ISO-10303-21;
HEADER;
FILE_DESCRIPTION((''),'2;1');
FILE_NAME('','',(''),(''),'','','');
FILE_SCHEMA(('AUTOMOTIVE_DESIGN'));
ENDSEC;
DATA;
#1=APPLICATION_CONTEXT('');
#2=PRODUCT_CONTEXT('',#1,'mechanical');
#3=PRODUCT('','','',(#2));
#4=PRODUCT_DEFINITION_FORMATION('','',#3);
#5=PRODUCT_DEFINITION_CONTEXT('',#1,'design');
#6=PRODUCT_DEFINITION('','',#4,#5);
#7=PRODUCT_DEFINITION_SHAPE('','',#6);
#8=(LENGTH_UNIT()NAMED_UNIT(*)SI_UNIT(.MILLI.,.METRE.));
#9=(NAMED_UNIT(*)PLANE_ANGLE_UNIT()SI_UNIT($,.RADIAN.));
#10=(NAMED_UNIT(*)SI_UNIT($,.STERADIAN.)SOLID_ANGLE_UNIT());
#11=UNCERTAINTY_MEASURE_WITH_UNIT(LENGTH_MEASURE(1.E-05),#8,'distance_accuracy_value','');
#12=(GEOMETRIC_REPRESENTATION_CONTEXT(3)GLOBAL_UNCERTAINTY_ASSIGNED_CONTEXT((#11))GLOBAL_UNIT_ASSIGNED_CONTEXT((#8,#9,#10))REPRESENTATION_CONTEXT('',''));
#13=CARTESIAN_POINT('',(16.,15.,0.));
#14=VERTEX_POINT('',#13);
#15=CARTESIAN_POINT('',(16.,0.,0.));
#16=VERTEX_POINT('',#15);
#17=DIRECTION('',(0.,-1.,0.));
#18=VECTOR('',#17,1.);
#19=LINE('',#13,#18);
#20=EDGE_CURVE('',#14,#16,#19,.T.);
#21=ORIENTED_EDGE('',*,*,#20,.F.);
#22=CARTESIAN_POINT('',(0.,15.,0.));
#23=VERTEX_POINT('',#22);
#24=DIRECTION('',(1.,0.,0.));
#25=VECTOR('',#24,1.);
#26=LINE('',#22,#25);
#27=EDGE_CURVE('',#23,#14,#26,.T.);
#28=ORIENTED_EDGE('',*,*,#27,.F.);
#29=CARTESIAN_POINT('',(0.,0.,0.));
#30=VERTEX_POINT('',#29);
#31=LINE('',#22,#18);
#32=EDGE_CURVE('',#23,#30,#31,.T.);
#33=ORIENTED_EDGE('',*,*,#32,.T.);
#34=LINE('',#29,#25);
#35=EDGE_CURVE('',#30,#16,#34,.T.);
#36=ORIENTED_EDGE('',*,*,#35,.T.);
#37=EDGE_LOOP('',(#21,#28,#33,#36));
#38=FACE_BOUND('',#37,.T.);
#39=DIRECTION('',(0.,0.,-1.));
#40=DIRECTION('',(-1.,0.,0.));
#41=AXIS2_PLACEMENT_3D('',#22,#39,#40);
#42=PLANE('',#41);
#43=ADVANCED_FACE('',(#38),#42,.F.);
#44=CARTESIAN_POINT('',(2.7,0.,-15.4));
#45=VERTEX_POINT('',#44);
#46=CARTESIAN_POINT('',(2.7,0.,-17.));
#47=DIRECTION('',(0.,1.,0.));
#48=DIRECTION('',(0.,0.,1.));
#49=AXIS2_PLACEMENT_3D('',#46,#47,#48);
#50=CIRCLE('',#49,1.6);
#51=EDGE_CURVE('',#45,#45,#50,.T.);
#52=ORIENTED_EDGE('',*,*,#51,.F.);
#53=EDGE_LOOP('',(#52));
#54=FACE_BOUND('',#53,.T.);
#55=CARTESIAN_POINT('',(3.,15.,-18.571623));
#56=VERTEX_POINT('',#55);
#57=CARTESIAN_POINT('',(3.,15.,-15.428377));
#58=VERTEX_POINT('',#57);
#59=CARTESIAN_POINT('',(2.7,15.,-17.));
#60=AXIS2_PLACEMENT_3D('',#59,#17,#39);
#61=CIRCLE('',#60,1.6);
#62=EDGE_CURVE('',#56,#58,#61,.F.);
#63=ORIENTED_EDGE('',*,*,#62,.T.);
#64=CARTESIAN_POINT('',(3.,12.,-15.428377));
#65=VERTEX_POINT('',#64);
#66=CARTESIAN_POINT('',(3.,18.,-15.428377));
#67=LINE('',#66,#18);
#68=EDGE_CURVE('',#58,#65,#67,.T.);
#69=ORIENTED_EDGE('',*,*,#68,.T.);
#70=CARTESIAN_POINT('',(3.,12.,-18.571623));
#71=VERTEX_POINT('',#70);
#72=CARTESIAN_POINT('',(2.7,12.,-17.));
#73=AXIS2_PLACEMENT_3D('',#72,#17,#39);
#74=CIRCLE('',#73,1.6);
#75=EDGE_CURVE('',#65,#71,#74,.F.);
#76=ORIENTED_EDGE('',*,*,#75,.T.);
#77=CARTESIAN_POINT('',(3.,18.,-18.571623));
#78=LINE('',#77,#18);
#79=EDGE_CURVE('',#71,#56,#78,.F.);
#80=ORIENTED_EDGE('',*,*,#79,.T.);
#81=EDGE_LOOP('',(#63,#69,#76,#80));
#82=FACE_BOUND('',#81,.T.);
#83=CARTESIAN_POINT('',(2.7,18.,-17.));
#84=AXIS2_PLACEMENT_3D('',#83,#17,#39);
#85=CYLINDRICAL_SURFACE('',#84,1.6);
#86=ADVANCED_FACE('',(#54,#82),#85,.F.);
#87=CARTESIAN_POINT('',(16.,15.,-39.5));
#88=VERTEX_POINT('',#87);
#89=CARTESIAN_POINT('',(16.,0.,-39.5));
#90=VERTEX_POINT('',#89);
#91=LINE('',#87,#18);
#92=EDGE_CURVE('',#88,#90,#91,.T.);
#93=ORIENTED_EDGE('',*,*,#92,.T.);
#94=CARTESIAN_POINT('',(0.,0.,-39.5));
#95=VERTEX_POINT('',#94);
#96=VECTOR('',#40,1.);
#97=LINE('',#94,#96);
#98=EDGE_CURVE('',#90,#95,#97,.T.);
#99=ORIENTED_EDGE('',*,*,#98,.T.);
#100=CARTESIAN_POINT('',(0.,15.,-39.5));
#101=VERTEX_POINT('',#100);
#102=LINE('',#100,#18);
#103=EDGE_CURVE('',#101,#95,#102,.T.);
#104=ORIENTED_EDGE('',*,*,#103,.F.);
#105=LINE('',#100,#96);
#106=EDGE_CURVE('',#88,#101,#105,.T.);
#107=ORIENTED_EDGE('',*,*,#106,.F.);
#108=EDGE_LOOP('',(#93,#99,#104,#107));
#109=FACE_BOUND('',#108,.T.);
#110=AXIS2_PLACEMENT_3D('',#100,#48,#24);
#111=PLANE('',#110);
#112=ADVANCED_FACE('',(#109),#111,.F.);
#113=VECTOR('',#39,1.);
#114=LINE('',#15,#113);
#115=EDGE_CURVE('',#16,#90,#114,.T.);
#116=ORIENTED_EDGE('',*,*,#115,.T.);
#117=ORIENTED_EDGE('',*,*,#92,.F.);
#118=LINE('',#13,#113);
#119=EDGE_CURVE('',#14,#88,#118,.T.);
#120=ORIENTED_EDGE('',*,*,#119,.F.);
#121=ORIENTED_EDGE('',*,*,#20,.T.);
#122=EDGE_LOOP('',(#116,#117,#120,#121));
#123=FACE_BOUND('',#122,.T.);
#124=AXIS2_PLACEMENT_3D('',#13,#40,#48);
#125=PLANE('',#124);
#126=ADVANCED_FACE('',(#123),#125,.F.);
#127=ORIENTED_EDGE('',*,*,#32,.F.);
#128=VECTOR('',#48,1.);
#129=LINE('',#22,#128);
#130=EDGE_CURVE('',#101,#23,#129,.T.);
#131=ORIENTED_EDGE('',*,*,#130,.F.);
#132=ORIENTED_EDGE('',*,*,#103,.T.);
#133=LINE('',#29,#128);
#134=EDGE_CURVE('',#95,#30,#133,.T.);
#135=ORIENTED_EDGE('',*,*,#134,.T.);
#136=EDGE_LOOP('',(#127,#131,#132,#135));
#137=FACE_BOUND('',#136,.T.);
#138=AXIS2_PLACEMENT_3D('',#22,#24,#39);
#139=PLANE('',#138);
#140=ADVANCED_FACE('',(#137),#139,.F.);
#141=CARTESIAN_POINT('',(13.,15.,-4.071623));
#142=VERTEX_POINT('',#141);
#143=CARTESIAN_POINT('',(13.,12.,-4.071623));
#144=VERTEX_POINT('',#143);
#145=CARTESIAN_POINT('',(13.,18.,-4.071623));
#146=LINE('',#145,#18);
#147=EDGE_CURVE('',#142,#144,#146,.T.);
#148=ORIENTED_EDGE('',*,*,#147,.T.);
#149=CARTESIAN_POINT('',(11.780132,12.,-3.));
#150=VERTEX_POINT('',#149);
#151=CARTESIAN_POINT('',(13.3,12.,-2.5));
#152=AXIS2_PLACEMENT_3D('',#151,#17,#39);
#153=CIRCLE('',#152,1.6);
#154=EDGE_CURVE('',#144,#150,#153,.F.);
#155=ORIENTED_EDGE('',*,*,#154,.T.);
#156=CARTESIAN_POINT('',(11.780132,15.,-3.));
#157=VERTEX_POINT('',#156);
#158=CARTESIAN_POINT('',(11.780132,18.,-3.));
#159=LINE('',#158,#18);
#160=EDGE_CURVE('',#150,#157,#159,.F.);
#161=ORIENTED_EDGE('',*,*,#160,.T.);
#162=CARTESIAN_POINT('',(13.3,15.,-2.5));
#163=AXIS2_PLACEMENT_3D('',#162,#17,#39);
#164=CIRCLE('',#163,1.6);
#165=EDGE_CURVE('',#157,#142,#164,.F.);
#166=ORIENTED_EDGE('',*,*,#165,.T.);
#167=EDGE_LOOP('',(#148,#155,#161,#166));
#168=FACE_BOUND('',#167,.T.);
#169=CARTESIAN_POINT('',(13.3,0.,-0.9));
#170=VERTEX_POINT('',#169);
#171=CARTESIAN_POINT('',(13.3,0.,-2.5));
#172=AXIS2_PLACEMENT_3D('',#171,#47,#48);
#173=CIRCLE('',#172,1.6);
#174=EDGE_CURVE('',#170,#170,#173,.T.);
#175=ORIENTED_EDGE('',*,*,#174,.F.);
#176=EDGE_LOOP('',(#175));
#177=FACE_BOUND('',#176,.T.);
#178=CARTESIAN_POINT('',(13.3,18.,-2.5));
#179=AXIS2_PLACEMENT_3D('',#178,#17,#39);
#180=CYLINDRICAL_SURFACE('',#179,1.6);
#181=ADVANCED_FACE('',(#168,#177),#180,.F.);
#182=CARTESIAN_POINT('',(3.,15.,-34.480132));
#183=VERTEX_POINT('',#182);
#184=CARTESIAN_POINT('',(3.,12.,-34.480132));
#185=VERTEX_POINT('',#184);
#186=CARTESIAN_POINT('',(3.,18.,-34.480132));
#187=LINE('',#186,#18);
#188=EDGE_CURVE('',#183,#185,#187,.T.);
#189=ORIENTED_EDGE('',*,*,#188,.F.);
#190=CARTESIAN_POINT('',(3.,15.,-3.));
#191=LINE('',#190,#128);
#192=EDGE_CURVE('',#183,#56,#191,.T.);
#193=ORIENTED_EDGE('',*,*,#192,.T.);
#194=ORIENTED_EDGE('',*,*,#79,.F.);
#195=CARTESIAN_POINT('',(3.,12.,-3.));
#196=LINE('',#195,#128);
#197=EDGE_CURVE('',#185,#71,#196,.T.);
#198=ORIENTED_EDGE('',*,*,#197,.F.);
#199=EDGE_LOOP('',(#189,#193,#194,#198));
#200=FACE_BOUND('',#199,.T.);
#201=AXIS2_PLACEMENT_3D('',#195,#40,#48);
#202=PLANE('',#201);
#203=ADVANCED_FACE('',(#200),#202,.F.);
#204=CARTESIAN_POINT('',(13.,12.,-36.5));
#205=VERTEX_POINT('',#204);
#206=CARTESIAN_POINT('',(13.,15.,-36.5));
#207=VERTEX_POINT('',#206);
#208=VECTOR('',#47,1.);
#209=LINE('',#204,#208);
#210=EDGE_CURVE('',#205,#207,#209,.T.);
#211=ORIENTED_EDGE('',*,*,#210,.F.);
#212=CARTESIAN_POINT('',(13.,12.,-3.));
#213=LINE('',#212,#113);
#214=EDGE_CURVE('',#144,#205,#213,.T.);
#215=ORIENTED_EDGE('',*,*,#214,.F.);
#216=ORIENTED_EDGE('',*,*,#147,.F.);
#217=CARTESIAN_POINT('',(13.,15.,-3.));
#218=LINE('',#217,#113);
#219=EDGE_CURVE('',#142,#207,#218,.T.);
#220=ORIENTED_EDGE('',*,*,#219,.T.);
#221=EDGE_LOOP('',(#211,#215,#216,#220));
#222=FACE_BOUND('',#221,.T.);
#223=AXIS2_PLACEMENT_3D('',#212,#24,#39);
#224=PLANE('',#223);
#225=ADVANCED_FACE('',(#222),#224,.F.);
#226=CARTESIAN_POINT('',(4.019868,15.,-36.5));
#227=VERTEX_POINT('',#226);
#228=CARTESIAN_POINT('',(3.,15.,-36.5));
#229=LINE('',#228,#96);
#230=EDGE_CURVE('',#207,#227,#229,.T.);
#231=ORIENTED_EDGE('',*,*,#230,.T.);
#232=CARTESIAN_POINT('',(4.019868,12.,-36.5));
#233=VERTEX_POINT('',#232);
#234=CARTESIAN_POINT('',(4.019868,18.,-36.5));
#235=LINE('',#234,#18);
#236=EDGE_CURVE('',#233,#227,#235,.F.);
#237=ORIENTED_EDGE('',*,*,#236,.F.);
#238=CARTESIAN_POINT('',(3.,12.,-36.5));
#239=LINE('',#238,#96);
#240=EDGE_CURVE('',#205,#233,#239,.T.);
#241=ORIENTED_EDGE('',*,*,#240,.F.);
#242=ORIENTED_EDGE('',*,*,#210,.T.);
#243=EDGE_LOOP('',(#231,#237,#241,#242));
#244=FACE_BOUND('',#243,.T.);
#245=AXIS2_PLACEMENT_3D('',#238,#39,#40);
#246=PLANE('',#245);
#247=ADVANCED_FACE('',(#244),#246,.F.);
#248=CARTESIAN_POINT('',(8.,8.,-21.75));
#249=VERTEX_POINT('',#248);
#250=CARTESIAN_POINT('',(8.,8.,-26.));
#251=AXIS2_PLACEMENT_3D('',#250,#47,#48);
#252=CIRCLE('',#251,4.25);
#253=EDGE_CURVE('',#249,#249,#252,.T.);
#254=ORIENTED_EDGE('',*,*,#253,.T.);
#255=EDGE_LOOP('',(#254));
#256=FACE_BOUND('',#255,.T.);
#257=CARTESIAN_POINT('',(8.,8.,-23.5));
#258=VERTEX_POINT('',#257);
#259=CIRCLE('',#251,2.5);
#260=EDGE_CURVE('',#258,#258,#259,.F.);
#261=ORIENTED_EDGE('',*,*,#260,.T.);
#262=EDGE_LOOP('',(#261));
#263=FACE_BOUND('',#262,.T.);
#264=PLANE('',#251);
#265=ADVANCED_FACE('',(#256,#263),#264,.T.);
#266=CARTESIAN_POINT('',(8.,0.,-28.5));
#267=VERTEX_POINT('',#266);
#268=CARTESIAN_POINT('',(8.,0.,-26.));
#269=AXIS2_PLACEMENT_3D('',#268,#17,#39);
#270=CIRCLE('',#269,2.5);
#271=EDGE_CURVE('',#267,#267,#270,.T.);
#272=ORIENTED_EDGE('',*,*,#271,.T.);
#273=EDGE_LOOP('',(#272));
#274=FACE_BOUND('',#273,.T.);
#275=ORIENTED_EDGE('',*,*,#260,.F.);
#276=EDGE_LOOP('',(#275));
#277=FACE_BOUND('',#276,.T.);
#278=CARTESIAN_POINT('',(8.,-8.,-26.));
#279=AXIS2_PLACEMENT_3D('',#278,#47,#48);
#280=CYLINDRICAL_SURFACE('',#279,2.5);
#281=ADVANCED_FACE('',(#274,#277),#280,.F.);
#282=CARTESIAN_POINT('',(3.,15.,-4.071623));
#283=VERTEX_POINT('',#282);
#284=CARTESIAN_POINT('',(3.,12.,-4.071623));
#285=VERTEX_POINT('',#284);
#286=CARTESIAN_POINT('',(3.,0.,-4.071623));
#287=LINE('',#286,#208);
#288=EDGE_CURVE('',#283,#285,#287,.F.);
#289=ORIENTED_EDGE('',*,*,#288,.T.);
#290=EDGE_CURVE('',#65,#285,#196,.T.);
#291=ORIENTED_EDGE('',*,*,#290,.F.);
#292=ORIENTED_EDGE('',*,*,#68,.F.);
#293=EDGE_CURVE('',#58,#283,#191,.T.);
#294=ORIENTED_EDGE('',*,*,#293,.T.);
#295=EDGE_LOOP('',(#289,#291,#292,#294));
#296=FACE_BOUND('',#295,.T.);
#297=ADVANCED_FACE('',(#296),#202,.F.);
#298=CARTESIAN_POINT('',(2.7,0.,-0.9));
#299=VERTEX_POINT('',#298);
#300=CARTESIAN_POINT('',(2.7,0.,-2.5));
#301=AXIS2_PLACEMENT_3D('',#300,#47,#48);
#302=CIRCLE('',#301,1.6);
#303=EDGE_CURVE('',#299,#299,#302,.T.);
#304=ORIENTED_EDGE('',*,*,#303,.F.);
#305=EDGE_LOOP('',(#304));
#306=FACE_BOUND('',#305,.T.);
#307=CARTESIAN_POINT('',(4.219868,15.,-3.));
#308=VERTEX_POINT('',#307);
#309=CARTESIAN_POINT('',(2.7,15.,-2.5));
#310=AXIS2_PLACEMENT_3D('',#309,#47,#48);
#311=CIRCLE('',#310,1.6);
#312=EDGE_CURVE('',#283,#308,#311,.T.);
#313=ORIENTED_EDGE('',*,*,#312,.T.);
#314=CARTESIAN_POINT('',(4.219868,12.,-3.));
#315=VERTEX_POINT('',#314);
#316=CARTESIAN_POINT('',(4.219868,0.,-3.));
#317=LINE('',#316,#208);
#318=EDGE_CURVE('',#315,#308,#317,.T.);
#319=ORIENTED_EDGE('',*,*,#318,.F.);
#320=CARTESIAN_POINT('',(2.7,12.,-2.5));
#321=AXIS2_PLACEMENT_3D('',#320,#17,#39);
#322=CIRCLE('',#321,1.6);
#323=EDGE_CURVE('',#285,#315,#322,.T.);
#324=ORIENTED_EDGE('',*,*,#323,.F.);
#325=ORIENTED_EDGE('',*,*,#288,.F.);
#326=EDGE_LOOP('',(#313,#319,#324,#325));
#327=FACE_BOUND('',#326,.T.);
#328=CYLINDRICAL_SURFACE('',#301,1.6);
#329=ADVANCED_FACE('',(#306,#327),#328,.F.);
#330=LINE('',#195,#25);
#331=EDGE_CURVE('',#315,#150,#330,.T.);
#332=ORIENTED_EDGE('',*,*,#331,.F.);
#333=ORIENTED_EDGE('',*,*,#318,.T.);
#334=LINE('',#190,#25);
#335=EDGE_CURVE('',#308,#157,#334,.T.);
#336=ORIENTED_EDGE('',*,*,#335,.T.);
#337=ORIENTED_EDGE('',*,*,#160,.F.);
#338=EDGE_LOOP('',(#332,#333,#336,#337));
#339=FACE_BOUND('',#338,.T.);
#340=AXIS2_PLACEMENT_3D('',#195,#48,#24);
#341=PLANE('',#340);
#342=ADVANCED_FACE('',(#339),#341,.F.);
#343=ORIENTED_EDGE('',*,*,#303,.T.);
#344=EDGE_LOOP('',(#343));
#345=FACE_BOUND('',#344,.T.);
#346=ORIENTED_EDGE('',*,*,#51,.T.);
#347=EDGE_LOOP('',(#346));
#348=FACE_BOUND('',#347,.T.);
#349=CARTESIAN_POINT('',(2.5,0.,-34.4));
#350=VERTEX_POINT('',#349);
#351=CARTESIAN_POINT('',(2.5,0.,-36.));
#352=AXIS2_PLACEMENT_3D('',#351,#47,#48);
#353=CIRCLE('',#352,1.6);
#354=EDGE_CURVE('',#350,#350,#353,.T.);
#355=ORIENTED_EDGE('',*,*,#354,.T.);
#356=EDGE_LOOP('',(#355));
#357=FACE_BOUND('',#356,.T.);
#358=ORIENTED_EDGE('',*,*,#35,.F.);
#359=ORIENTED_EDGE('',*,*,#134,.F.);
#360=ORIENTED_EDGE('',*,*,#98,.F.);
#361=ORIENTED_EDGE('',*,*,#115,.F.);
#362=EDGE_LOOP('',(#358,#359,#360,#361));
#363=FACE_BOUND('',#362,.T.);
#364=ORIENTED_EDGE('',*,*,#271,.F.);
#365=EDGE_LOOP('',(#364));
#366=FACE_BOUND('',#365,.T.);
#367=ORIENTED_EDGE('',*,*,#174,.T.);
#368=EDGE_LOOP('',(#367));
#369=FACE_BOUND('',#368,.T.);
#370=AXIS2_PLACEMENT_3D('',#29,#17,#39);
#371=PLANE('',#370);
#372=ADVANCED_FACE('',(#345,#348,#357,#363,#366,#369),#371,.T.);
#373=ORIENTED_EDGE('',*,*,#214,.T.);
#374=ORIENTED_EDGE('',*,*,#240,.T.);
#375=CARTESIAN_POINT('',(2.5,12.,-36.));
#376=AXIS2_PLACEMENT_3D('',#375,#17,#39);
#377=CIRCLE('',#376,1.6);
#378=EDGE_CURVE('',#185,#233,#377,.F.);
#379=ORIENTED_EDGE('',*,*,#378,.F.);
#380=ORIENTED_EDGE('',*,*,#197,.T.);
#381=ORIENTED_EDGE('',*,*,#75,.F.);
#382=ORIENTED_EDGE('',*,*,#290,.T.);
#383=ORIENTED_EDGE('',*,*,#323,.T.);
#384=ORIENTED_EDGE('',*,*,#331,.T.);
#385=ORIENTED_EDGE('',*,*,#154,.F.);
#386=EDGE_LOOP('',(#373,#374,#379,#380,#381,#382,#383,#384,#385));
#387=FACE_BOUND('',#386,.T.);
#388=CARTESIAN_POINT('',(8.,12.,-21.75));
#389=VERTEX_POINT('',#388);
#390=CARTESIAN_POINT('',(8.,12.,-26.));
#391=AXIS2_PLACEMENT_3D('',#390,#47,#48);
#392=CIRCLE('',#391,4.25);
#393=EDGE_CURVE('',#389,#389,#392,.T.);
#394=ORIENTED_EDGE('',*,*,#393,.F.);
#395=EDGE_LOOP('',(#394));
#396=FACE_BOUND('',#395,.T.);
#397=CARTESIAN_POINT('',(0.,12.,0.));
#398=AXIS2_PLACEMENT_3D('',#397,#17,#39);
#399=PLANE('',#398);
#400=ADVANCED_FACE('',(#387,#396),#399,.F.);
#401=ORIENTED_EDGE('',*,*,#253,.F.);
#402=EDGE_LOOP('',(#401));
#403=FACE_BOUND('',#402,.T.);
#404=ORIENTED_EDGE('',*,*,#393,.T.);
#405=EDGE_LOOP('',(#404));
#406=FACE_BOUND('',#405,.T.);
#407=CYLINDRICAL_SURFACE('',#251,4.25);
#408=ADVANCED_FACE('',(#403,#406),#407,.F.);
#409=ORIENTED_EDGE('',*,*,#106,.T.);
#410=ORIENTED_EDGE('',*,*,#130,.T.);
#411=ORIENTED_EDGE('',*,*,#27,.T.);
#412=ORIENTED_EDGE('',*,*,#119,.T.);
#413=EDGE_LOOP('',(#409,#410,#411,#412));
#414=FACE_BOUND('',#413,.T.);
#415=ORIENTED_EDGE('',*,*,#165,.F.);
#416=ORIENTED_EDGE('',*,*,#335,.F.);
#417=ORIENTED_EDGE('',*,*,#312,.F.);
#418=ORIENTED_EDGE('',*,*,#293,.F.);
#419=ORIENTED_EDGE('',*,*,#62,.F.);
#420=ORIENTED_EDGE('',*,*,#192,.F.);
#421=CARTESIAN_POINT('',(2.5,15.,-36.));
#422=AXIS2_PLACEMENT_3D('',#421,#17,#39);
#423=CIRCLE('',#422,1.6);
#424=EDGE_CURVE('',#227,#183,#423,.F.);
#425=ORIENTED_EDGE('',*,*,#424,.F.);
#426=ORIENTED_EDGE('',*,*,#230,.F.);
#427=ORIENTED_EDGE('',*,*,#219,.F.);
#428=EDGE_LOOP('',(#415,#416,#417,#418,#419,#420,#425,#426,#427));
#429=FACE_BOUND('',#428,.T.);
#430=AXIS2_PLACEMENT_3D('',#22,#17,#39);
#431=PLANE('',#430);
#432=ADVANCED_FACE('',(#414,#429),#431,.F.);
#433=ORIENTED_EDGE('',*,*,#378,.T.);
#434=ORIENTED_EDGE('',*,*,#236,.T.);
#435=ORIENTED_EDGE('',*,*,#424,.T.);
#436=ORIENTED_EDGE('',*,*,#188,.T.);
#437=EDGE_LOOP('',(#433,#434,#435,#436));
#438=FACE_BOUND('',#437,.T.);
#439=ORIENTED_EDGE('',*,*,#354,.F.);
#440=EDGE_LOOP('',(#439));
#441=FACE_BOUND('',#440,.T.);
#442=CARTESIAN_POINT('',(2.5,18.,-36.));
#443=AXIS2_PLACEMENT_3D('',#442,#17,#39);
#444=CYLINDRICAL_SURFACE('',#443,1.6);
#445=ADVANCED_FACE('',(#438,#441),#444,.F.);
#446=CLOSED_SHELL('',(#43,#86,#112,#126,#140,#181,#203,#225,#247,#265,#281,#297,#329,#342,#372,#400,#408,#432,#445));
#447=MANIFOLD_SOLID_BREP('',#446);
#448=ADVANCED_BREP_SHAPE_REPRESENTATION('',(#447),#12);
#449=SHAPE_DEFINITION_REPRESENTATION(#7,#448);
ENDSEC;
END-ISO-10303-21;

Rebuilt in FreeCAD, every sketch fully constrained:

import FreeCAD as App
import Part
import Sketcher
Q = App.Units.Quantity

doc = App.newDocument("Part")
body = doc.addObject("PartDesign::Body", "Body")

# Sketch on XZ plane
sketch1 = body.newObject("Sketcher::SketchObject", "Sketch")
sketch1.AttachmentSupport = (doc.getObject("XZ_Plane"), [""])
sketch1.MapMode = "FlatFace"
sketch1.addGeometry([
    Part.LineSegment(App.Vector(0, -39.5, 0), App.Vector(0, 0, 0)),
    Part.LineSegment(App.Vector(0, 0, 0), App.Vector(16, 0, 0)),
    Part.LineSegment(App.Vector(16, 0, 0), App.Vector(16, -39.5, 0)),
    Part.LineSegment(App.Vector(16, -39.5, 0), App.Vector(0, -39.5, 0)),
], False)
sketch1.addConstraint([
    Sketcher.Constraint("Coincident", 0, 2, 1, 1),
    Sketcher.Constraint("Coincident", 1, 2, 2, 1),
    Sketcher.Constraint("Coincident", 2, 2, 3, 1),
    Sketcher.Constraint("Coincident", 3, 2, 0, 1),
    Sketcher.Constraint("Vertical", 0),
    Sketcher.Constraint("Horizontal", 1),
    Sketcher.Constraint("Vertical", 2),
    Sketcher.Constraint("Horizontal", 3),
    Sketcher.Constraint("Coincident", 0, 2, -1, 1),
    Sketcher.Constraint("DistanceX", 1, 1, 1, 2, Q("16 mm")),
    Sketcher.Constraint("DistanceY", 0, 1, 0, 2, Q("39.5 mm")),
])
pad1 = body.newObject("PartDesign::Pad", "Pad")
pad1.Profile = sketch1
pad1.Length = 15
pad1.Reversed = True

# Sketch on XZ plane
sketch2 = body.newObject("Sketcher::SketchObject", "Sketch001")
sketch2.AttachmentSupport = (doc.getObject("XZ_Plane"), [""])
sketch2.MapMode = "FlatFace"
sketch2.AttachmentOffset = App.Placement(App.Vector(0, 0, -15), App.Rotation())
sketch2.addGeometry([
    Part.LineSegment(App.Vector(3, -36.5, 0), App.Vector(3, -3, 0)),
    Part.LineSegment(App.Vector(3, -3, 0), App.Vector(13, -3, 0)),
    Part.LineSegment(App.Vector(13, -3, 0), App.Vector(13, -36.5, 0)),
    Part.LineSegment(App.Vector(13, -36.5, 0), App.Vector(3, -36.5, 0)),
], False)
sketch2.addConstraint([
    Sketcher.Constraint("Coincident", 0, 2, 1, 1),
    Sketcher.Constraint("Coincident", 1, 2, 2, 1),
    Sketcher.Constraint("Coincident", 2, 2, 3, 1),
    Sketcher.Constraint("Coincident", 3, 2, 0, 1),
    Sketcher.Constraint("Vertical", 0),
    Sketcher.Constraint("Horizontal", 1),
    Sketcher.Constraint("Vertical", 2),
    Sketcher.Constraint("Horizontal", 3),
    Sketcher.Constraint("DistanceX", 1, 1, 1, 2, Q("10 mm")),
    Sketcher.Constraint("DistanceY", 0, 1, 0, 2, Q("33.5 mm")),
    Sketcher.Constraint("DistanceX", -1, 1, 0, 2, Q("3 mm")),
    Sketcher.Constraint("DistanceY", 0, 2, -1, 1, Q("3 mm")),
])
pocket1 = body.newObject("PartDesign::Pocket", "Pocket")
pocket1.Profile = sketch2
pocket1.Length = 3
pocket1.Reversed = True

# Sketch on XZ plane
sketch3 = body.newObject("Sketcher::SketchObject", "Sketch002")
sketch3.AttachmentSupport = (doc.getObject("XZ_Plane"), [""])
sketch3.MapMode = "FlatFace"
sketch3.AttachmentOffset = App.Placement(App.Vector(0, 0, -12), App.Rotation())
sketch3.addGeometry(Part.Circle(App.Vector(2.7, -2.5, 0), App.Vector(0, 0, 1), 1.6), False)
sketch3.addConstraint([
    Sketcher.Constraint("Diameter", 0, Q("3.2 mm")),
    Sketcher.Constraint("DistanceX", -1, 1, 0, 3, Q("2.7 mm")),
    Sketcher.Constraint("DistanceY", 0, 3, -1, 1, Q("2.5 mm")),
])
pocket2 = body.newObject("PartDesign::Pocket", "Pocket001")
pocket2.Profile = sketch3
pocket2.Type = "ThroughAll"
pocket2.Midplane = True

# Sketch on XZ plane
sketch4 = body.newObject("Sketcher::SketchObject", "Sketch003")
sketch4.AttachmentSupport = (doc.getObject("XZ_Plane"), [""])
sketch4.MapMode = "FlatFace"
sketch4.AttachmentOffset = App.Placement(App.Vector(0, 0, -15), App.Rotation())
sketch4.addGeometry([
    Part.Circle(App.Vector(13.3, -2.5, 0), App.Vector(0, 0, 1), 1.6),
    Part.Circle(App.Vector(2.7, -17, 0), App.Vector(0, 0, 1), 1.6),
    Part.Circle(App.Vector(2.5, -36, 0), App.Vector(0, 0, 1), 1.6),
], False)
sketch4.addConstraint([
    Sketcher.Constraint("Equal", 0, 1),
    Sketcher.Constraint("Equal", 1, 2),
    Sketcher.Constraint("Diameter", 0, Q("3.2 mm")),
    Sketcher.Constraint("DistanceY", 1, 3, -1, 1, Q("17 mm")),
    Sketcher.Constraint("DistanceY", 2, 3, -1, 1, Q("36 mm")),
    Sketcher.Constraint("DistanceX", -1, 1, 0, 3, Q("13.3 mm")),
    Sketcher.Constraint("DistanceY", 0, 3, -1, 1, Q("2.5 mm")),
    Sketcher.Constraint("DistanceX", -1, 1, 1, 3, Q("2.7 mm")),
    Sketcher.Constraint("DistanceX", -1, 1, 2, 3, Q("2.5 mm")),
])
pocket3 = body.newObject("PartDesign::Pocket", "Pocket002")
pocket3.Profile = sketch4
pocket3.Type = "ThroughAll"
pocket3.Midplane = True

# Sketch on XZ plane
sketch5 = body.newObject("Sketcher::SketchObject", "Sketch004")
sketch5.AttachmentSupport = (doc.getObject("XZ_Plane"), [""])
sketch5.MapMode = "FlatFace"
sketch5.AttachmentOffset = App.Placement(App.Vector(0, 0, -12), App.Rotation())
sketch5.addGeometry(Part.Circle(App.Vector(8, -26, 0), App.Vector(0, 0, 1), 2.5), False)
sketch5.addConstraint([
    Sketcher.Constraint("Diameter", 0, Q("5 mm")),
    Sketcher.Constraint("DistanceX", -1, 1, 0, 3, Q("8 mm")),
    Sketcher.Constraint("DistanceY", 0, 3, -1, 1, Q("26 mm")),
])
pocket4 = body.newObject("PartDesign::Pocket", "Pocket003")
pocket4.Profile = sketch5
pocket4.Length = 20
pocket4.Reversed = True

# Sketch on XZ plane
sketch6 = body.newObject("Sketcher::SketchObject", "Sketch005")
sketch6.AttachmentSupport = (doc.getObject("XZ_Plane"), [""])
sketch6.MapMode = "FlatFace"
sketch6.AttachmentOffset = App.Placement(App.Vector(0, 0, -12), App.Rotation())
sketch6.addGeometry(Part.Circle(App.Vector(8, -26, 0), App.Vector(0, 0, 1), 4.25), False)
sketch6.addConstraint([
    Sketcher.Constraint("Diameter", 0, Q("8.5 mm")),
    Sketcher.Constraint("DistanceX", -1, 1, 0, 3, Q("8 mm")),
    Sketcher.Constraint("DistanceY", 0, 3, -1, 1, Q("26 mm")),
])
pocket5 = body.newObject("PartDesign::Pocket", "Pocket004")
pocket5.Profile = sketch6
pocket5.Length = 4
pocket5.Reversed = True

doc.recompute()
